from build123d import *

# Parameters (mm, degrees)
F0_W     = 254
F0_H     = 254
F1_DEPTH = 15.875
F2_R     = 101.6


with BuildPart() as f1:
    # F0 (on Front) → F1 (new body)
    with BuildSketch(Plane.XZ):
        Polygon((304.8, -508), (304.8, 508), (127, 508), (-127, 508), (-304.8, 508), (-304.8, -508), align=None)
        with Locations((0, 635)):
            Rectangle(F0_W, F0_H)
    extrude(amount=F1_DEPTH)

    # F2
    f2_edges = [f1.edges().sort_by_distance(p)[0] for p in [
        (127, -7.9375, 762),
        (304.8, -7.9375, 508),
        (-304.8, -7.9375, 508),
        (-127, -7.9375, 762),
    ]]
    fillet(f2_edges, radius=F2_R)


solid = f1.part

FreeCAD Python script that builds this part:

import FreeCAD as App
import Part
import Sketcher
from FreeCAD import Vector
Q = App.Units.Quantity


def edges_at(feature, points):
    """Names of the edges that pass closest to the given points."""
    edges = feature.Shape.Edges
    near = lambda p: min(range(len(edges)), key=lambda i: edges[i].distToShape(Part.Vertex(*p))[0])
    return sorted({f"Edge{near(p) + 1}" for p in points})

doc = App.newDocument("Part")
body = doc.addObject("PartDesign::Body", "Body")

# Sketch on XZ plane
sketch1 = body.newObject("Sketcher::SketchObject", "Sketch")
sketch1.AttachmentSupport = (doc.getObject("XZ_Plane"), [""])
sketch1.MapMode = "FlatFace"
sketch1.addGeometry([
    Part.LineSegment(Vector(305, -508, 0), Vector(305, 508, 0)),  # 0
    Part.LineSegment(Vector(305, 508, 0), Vector(127, 508, 0)),  # 1
    Part.LineSegment(Vector(127, 508, 0), Vector(127, 762, 0)),  # 2
    Part.LineSegment(Vector(127, 762, 0), Vector(-127, 762, 0)),  # 3
    Part.LineSegment(Vector(-127, 762, 0), Vector(-127, 508, 0)),  # 4
    Part.LineSegment(Vector(-127, 508, 0), Vector(-305, 508, 0)),  # 5
    Part.LineSegment(Vector(-305, 508, 0), Vector(-305, -508, 0)),  # 6
    Part.LineSegment(Vector(-305, -508, 0), Vector(305, -508, 0)),  # 7
], False)
sketch1.addConstraint([
    Sketcher.Constraint("Coincident", 0, 2, 1, 1),
    Sketcher.Constraint("Coincident", 1, 2, 2, 1),
    Sketcher.Constraint("Coincident", 2, 2, 3, 1),
    Sketcher.Constraint("Coincident", 3, 2, 4, 1),
    Sketcher.Constraint("Coincident", 4, 2, 5, 1),
    Sketcher.Constraint("Coincident", 5, 2, 6, 1),
    Sketcher.Constraint("Coincident", 6, 2, 7, 1),
    Sketcher.Constraint("Coincident", 7, 2, 0, 1),
    Sketcher.Constraint("Vertical", 0),
    Sketcher.Constraint("Horizontal", 1),
    Sketcher.Constraint("Vertical", 2),
    Sketcher.Constraint("Horizontal", 3),
    Sketcher.Constraint("Vertical", 4),
    Sketcher.Constraint("Horizontal", 5),
    Sketcher.Constraint("Vertical", 6),
    Sketcher.Constraint("Horizontal", 7),
    Sketcher.Constraint("Symmetric", 0, 2, 6, 2, -1, 1),
    Sketcher.Constraint("Symmetric", 1, 2, 4, 2, -2),
    Sketcher.Constraint("Equal", 3, 2),
    Sketcher.Constraint("DistanceX", 1, 2, 1, 1, Q("7 in")),
    Sketcher.Constraint("DistanceX", 3, 2, 3, 1, Q("10 in")),
    Sketcher.Constraint("DistanceY", 0, 1, 0, 2, Q("40 in")),
])
pad1 = body.newObject("PartDesign::Pad", "Pad")
pad1.Profile = sketch1
pad1.Length = Q("0.625 in")
doc.recompute()

fillet = body.newObject("PartDesign::Fillet", "Fillet")
fillet.Base = (pad1, edges_at(pad1, [
    (127, -7.938, 762),
    (304.8, -7.938, 508),
    (-304.8, -7.938, 508),
    (-127, -7.938, 762),
]))
fillet.Radius = Q("4 in")

doc.recompute()
